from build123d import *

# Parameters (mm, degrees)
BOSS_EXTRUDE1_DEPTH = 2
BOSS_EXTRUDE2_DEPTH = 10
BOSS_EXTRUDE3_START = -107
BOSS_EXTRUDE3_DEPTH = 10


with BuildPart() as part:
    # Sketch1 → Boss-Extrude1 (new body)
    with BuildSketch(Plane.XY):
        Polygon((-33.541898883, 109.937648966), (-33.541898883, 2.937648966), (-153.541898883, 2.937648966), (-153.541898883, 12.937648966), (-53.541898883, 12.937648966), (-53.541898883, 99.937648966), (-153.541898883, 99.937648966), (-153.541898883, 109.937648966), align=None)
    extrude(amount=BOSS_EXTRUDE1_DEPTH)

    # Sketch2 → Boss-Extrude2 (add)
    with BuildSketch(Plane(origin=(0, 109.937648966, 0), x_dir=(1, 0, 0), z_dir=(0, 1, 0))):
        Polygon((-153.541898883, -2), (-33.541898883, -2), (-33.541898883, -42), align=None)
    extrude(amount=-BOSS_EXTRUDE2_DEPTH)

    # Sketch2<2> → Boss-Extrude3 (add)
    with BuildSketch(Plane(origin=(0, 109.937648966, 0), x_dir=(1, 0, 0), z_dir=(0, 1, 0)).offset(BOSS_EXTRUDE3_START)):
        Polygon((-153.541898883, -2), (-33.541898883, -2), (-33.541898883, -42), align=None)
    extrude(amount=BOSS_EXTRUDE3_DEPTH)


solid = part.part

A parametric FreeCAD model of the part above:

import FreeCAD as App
import Part
import Sketcher

doc = App.newDocument("Part")
body = doc.addObject("PartDesign::Body", "Body")

sketch1 = doc.addObject("Sketcher::SketchObject", "Sketch")
body.addObject(sketch1)
sketch1.AttachmentSupport = (doc.XY_Plane, [""])
sketch1.MapMode = "FlatFace"
sketch1.addGeometry(Part.LineSegment(App.Vector(-34, 3, 0), App.Vector(-34, 110, 0)), False)
sketch1.addGeometry(Part.LineSegment(App.Vector(-34, 110, 0), App.Vector(-154, 110, 0)), False)
sketch1.addGeometry(Part.LineSegment(App.Vector(-154, 110, 0), App.Vector(-154, 100, 0)), False)
sketch1.addGeometry(Part.LineSegment(App.Vector(-154, 100, 0), App.Vector(-54, 100, 0)), False)
sketch1.addGeometry(Part.LineSegment(App.Vector(-54, 100, 0), App.Vector(-54, 13, 0)), False)
sketch1.addGeometry(Part.LineSegment(App.Vector(-54, 13, 0), App.Vector(-154, 13, 0)), False)
sketch1.addGeometry(Part.LineSegment(App.Vector(-154, 13, 0), App.Vector(-154, 3, 0)), False)
sketch1.addGeometry(Part.LineSegment(App.Vector(-154, 3, 0), App.Vector(-34, 3, 0)), False)
sketch1.addConstraint(Sketcher.Constraint("Coincident", 0, 2, 1, 1))
sketch1.addConstraint(Sketcher.Constraint("Coincident", 1, 2, 2, 1))
sketch1.addConstraint(Sketcher.Constraint("Coincident", 2, 2, 3, 1))
sketch1.addConstraint(Sketcher.Constraint("Coincident", 3, 2, 4, 1))
sketch1.addConstraint(Sketcher.Constraint("Coincident", 4, 2, 5, 1))
sketch1.addConstraint(Sketcher.Constraint("Coincident", 5, 2, 6, 1))
sketch1.addConstraint(Sketcher.Constraint("Coincident", 6, 2, 7, 1))
sketch1.addConstraint(Sketcher.Constraint("Coincident", 7, 2, 0, 1))
sketch1.addConstraint(Sketcher.Constraint("Vertical", 0))
sketch1.addConstraint(Sketcher.Constraint("Horizontal", 1))
sketch1.addConstraint(Sketcher.Constraint("Vertical", 2))
sketch1.addConstraint(Sketcher.Constraint("Horizontal", 3))
sketch1.addConstraint(Sketcher.Constraint("Vertical", 4))
sketch1.addConstraint(Sketcher.Constraint("Horizontal", 5))
sketch1.addConstraint(Sketcher.Constraint("Vertical", 6))
sketch1.addConstraint(Sketcher.Constraint("Horizontal", 7))
sketch1.addConstraint(Sketcher.Constraint("Vertical", 2, 2, 5, 2))
sketch1.addConstraint(Sketcher.Constraint("Equal", 2, 6))
sketch1.addConstraint(Sketcher.Constraint("DistanceX", 1, 2, 1, 1, 120.0))
sketch1.addConstraint(Sketcher.Constraint("DistanceX", 3, 1, 3, 2, 100.0))
sketch1.addConstraint(Sketcher.Constraint("DistanceY", 0, 1, 0, 2, 107.0))
sketch1.addConstraint(Sketcher.Constraint("DistanceY", 2, 2, 2, 1, 10.0))
sketch1.addConstraint(Sketcher.Constraint("DistanceX", 0, 2, -1, 1, 33.541899))
sketch1.addConstraint(Sketcher.Constraint("DistanceY", -1, 1, 0, 2, 109.937649))
pad1 = doc.addObject("PartDesign::Pad", "Pad")
body.addObject(pad1)
pad1.Profile = sketch1
pad1.Length = 2

sketch2 = doc.addObject("Sketcher::SketchObject", "Sketch001")
body.addObject(sketch2)
sketch2.AttachmentSupport = (doc.XZ_Plane, [""])
sketch2.MapMode = "FlatFace"
sketch2.AttachmentOffset = App.Placement(App.Vector(0, 0, -109.937649), App.Rotation())
sketch2.addGeometry(Part.LineSegment(App.Vector(-34, 2, 0), App.Vector(-154, 2, 0)), False)
sketch2.addGeometry(Part.LineSegment(App.Vector(-154, 2, 0), App.Vector(-34, 42, 0)), False)
sketch2.addGeometry(Part.LineSegment(App.Vector(-34, 42, 0), App.Vector(-34, 2, 0)), False)
sketch2.addConstraint(Sketcher.Constraint("Coincident", 0, 2, 1, 1))
sketch2.addConstraint(Sketcher.Constraint("Coincident", 1, 2, 2, 1))
sketch2.addConstraint(Sketcher.Constraint("Coincident", 2, 2, 0, 1))
sketch2.addConstraint(Sketcher.Constraint("Horizontal", 0))
sketch2.addConstraint(Sketcher.Constraint("Vertical", 2))
sketch2.addConstraint(Sketcher.Constraint("DistanceX", 0, 2, 0, 1, 120.0))
sketch2.addConstraint(Sketcher.Constraint("DistanceY", 2, 2, 2, 1, 40.0))
sketch2.addConstraint(Sketcher.Constraint("DistanceY", -1, 1, 0, 2, 2.0))
sketch2.addConstraint(Sketcher.Constraint("DistanceX", 0, 2, -1, 1, 153.541899))
pad2 = doc.addObject("PartDesign::Pad", "Pad001")
body.addObject(pad2)
pad2.Profile = sketch2
pad2.Length = 10

sketch3 = doc.addObject("Sketcher::SketchObject", "Sketch002")
body.addObject(sketch3)
sketch3.AttachmentSupport = (doc.XZ_Plane, [""])
sketch3.MapMode = "FlatFace"
sketch3.AttachmentOffset = App.Placement(App.Vector(0, 0, -2.937649), App.Rotation())
sketch3.addGeometry(Part.LineSegment(App.Vector(-34, 2, 0), App.Vector(-154, 2, 0)), False)
sketch3.addGeometry(Part.LineSegment(App.Vector(-154, 2, 0), App.Vector(-34, 42, 0)), False)
sketch3.addGeometry(Part.LineSegment(App.Vector(-34, 42, 0), App.Vector(-34, 2, 0)), False)
sketch3.addConstraint(Sketcher.Constraint("Coincident", 0, 2, 1, 1))
sketch3.addConstraint(Sketcher.Constraint("Coincident", 1, 2, 2, 1))
sketch3.addConstraint(Sketcher.Constraint("Coincident", 2, 2, 0, 1))
sketch3.addConstraint(Sketcher.Constraint("Horizontal", 0))
sketch3.addConstraint(Sketcher.Constraint("Vertical", 2))
sketch3.addConstraint(Sketcher.Constraint("DistanceX", 0, 2, 0, 1, 120.0))
sketch3.addConstraint(Sketcher.Constraint("DistanceY", 2, 2, 2, 1, 40.0))
sketch3.addConstraint(Sketcher.Constraint("DistanceY", -1, 1, 0, 2, 2.0))
sketch3.addConstraint(Sketcher.Constraint("DistanceX", 0, 2, -1, 1, 153.541899))
pad3 = doc.addObject("PartDesign::Pad", "Pad002")
body.addObject(pad3)
pad3.Profile = sketch3
pad3.Length = 10
pad3.Reversed = True

doc.recompute()
